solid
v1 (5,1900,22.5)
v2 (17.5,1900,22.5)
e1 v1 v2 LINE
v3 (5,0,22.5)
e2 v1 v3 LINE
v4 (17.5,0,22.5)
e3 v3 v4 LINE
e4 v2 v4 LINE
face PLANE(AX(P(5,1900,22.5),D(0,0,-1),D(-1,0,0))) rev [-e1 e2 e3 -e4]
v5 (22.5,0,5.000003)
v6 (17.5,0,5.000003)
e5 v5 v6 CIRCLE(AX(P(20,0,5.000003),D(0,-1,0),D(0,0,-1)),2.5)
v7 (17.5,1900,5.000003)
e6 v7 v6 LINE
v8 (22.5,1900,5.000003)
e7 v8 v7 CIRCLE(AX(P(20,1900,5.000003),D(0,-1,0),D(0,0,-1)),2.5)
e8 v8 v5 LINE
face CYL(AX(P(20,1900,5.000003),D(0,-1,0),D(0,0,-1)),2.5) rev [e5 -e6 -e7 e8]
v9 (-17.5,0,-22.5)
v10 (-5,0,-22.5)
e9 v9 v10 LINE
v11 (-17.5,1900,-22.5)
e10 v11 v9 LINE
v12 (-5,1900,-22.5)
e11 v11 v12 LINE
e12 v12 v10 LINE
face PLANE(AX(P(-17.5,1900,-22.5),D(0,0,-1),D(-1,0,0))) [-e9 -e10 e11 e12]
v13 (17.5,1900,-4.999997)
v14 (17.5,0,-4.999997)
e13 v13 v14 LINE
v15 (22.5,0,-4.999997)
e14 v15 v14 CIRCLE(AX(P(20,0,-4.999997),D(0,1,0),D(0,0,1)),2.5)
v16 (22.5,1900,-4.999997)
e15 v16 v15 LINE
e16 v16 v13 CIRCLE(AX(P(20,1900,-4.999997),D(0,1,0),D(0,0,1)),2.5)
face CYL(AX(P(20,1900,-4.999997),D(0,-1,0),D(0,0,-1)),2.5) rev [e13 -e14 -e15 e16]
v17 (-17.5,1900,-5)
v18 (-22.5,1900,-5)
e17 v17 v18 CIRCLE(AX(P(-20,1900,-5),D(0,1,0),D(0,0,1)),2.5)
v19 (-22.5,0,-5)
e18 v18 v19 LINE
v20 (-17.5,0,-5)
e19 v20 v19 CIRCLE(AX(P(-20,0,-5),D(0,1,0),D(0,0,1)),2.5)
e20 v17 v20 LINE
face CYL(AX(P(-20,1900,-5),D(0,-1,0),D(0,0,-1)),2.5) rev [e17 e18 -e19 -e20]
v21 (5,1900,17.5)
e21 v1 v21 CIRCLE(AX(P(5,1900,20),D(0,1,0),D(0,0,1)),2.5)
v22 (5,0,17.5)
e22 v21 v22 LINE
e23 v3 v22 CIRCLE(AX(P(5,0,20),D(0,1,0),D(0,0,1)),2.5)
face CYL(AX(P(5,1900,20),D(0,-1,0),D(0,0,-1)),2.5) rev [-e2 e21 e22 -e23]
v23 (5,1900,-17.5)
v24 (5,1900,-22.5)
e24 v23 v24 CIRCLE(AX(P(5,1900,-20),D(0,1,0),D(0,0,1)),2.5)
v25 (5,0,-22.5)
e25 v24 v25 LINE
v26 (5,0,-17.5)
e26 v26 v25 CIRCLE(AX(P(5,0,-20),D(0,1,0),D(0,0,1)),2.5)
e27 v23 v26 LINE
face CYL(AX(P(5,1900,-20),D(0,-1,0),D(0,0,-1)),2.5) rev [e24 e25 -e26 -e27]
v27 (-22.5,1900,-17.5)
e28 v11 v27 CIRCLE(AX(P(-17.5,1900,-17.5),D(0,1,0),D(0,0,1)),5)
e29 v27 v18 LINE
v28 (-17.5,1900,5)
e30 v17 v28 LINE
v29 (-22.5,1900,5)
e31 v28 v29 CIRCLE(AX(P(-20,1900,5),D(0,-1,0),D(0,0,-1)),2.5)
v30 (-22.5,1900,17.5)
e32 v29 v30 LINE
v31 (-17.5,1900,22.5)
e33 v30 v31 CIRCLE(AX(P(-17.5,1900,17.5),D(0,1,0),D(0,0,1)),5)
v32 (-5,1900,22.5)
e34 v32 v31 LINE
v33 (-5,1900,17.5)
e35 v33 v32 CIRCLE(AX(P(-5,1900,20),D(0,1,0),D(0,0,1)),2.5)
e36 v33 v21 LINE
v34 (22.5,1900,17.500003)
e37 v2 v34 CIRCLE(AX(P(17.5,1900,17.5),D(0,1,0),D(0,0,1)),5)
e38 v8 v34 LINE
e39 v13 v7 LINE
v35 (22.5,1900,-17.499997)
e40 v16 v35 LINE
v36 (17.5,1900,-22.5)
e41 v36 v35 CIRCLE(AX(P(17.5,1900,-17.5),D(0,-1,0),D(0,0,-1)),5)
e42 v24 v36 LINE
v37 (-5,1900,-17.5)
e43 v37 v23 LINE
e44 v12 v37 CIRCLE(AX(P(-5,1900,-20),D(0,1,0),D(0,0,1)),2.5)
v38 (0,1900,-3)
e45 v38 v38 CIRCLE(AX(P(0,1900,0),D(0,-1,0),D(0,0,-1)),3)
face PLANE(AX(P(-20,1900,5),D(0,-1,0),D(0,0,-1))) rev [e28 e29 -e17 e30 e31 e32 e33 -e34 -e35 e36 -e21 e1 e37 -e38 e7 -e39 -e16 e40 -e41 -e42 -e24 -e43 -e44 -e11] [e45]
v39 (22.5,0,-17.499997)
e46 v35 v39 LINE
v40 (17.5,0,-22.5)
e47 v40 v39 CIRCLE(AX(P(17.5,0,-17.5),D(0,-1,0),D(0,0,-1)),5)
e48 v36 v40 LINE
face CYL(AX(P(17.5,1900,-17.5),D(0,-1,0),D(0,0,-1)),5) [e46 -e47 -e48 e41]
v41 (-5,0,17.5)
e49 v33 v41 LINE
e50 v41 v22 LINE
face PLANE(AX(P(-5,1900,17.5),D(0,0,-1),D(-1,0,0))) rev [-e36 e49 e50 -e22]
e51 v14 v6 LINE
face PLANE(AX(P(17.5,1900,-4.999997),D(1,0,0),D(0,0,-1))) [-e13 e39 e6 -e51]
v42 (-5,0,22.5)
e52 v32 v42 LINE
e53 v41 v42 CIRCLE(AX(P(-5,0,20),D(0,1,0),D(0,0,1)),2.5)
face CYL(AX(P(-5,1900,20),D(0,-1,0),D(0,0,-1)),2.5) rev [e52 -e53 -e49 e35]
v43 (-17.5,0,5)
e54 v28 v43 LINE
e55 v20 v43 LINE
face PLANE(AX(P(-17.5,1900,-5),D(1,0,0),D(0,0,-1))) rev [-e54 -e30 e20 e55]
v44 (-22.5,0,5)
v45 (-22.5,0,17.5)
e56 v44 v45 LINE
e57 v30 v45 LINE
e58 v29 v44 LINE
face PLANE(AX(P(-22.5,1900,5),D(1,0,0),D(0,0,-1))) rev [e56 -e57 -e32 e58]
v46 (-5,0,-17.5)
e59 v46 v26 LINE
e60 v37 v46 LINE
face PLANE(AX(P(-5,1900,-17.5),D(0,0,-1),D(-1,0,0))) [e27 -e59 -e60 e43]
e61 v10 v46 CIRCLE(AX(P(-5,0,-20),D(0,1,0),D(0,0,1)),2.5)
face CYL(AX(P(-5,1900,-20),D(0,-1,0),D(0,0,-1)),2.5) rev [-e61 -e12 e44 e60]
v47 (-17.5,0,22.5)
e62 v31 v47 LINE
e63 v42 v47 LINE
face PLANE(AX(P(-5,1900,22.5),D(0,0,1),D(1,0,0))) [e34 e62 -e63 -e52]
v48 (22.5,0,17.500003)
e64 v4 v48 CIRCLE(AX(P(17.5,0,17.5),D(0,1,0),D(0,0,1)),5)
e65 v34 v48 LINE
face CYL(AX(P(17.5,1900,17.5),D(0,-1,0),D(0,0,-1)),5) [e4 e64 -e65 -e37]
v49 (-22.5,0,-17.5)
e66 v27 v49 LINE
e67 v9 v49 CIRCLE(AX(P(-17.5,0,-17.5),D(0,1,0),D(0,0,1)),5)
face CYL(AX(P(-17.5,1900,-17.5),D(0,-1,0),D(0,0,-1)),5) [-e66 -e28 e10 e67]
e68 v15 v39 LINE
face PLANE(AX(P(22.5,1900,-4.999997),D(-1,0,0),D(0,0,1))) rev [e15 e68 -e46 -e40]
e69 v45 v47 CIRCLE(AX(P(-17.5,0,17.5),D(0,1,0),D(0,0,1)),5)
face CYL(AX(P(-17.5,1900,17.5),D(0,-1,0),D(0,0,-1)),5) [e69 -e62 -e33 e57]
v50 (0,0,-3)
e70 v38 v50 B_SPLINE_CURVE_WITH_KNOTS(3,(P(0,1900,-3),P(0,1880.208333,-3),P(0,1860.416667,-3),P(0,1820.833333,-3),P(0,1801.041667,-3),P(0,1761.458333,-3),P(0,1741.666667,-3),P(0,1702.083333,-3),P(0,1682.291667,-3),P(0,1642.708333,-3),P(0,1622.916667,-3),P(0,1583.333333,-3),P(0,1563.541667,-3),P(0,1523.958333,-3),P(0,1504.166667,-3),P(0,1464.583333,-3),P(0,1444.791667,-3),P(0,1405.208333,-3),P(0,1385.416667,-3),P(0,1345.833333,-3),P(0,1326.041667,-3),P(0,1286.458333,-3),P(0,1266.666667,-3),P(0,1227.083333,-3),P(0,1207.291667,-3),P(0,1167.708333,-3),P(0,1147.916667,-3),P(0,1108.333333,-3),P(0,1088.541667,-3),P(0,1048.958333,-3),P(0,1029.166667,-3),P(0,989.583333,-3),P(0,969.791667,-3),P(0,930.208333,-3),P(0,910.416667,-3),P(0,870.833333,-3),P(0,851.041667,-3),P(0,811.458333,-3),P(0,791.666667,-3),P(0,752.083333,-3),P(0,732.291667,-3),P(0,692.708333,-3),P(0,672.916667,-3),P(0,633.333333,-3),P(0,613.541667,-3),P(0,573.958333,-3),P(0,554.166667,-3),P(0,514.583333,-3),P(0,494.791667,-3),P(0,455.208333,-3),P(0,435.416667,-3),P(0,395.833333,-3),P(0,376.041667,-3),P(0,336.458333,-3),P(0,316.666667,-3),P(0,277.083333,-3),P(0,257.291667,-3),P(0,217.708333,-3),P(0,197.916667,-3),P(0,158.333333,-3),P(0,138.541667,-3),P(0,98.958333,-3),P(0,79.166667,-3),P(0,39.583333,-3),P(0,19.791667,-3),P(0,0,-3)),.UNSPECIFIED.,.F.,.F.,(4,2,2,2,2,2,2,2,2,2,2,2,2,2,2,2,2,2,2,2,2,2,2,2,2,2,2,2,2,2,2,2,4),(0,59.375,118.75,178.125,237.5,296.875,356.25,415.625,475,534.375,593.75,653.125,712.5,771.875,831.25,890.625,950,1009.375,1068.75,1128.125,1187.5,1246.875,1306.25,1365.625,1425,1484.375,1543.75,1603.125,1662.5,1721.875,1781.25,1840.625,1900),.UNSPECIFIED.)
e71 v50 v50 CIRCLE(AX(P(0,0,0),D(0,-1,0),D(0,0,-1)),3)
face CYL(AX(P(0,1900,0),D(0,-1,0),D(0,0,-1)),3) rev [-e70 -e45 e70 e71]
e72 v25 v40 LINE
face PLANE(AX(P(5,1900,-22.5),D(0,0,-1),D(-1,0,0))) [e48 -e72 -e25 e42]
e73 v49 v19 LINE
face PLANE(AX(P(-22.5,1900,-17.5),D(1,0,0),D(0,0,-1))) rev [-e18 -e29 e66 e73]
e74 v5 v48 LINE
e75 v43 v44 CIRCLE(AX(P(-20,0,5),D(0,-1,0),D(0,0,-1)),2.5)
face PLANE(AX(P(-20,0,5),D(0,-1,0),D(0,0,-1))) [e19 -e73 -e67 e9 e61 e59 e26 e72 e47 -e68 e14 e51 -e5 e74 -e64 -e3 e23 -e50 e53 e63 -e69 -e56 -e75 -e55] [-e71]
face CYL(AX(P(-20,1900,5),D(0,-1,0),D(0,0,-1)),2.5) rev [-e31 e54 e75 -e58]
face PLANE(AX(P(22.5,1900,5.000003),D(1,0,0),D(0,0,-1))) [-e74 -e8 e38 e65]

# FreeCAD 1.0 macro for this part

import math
import FreeCAD as App
import Part
import Sketcher

V = App.Vector

doc = App.newDocument("Part")
body = doc.addObject("PartDesign::Body", "Body")

sketch1 = doc.addObject("Sketcher::SketchObject", "Sketch")
body.addObject(sketch1)
sketch1.AttachmentSupport = (doc.XZ_Plane, [""])
sketch1.MapMode = "FlatFace"
sketch1.addGeometry(Part.LineSegment(V(-5, -22.5, 0), V(-17.5, -22.5, 0)), False)
sketch1.addGeometry(Part.ArcOfCircle(Part.Circle(V(-17.5, -17.5, 0), V(0, 0, 1), 5), math.radians(180), math.radians(270)), False)
sketch1.addGeometry(Part.LineSegment(V(-22.5, -17.5, 0), V(-22.5, -5, 0)), False)
sketch1.addGeometry(Part.ArcOfCircle(Part.Circle(V(-20, -5, 0), V(0, 0, 1), 2.5), math.radians(180), math.radians(360)), False)
sketch1.addGeometry(Part.LineSegment(V(-17.5, -5, 0), V(-17.5, 5, 0)), False)
sketch1.addGeometry(Part.ArcOfCircle(Part.Circle(V(-20, 5, 0), V(0, 0, 1), 2.5), math.radians(0), math.radians(180)), False)
sketch1.addGeometry(Part.LineSegment(V(-22.5, 5, 0), V(-22.5, 17.5, 0)), False)
sketch1.addGeometry(Part.ArcOfCircle(Part.Circle(V(-17.5, 17.5, 0), V(0, 0, 1), 5), math.radians(90), math.radians(180)), False)
sketch1.addGeometry(Part.LineSegment(V(-17.5, 22.5, 0), V(-5, 22.5, 0)), False)
sketch1.addGeometry(Part.ArcOfCircle(Part.Circle(V(-5, 20, 0), V(0, 0, 1), 2.5), math.radians(90), math.radians(270)), False)
sketch1.addGeometry(Part.LineSegment(V(-5, 17.5, 0), V(5, 17.5, 0)), False)
sketch1.addGeometry(Part.ArcOfCircle(Part.Circle(V(5, 20, 0), V(0, 0, 1), 2.5), math.radians(-90), math.radians(90)), False)
sketch1.addGeometry(Part.LineSegment(V(5, 22.5, 0), V(17.5, 22.5, 0)), False)
sketch1.addGeometry(Part.ArcOfCircle(Part.Circle(V(17.5, 17.5, 0), V(0, 0, 1), 5), math.radians(0), math.radians(90)), False)
sketch1.addGeometry(Part.LineSegment(V(22.5, 17.5, 0), V(22.5, 5, 0)), False)
sketch1.addGeometry(Part.ArcOfCircle(Part.Circle(V(20, 5, 0), V(0, 0, 1), 2.5), math.radians(0), math.radians(180)), False)
sketch1.addGeometry(Part.LineSegment(V(17.5, 5, 0), V(17.5, -5, 0)), False)
sketch1.addGeometry(Part.ArcOfCircle(Part.Circle(V(20, -5, 0), V(0, 0, 1), 2.5), math.radians(180), math.radians(360)), False)
sketch1.addGeometry(Part.LineSegment(V(22.5, -5, 0), V(22.5, -17.5, 0)), False)
sketch1.addGeometry(Part.ArcOfCircle(Part.Circle(V(17.5, -17.5, 0), V(0, 0, 1), 5), math.radians(-90), math.radians(0)), False)
sketch1.addGeometry(Part.LineSegment(V(17.5, -22.5, 0), V(5, -22.5, 0)), False)
sketch1.addGeometry(Part.ArcOfCircle(Part.Circle(V(5, -20, 0), V(0, 0, 1), 2.5), math.radians(-90), math.radians(90)), False)
sketch1.addGeometry(Part.LineSegment(V(5, -17.5, 0), V(-5, -17.5, 0)), False)
sketch1.addGeometry(Part.ArcOfCircle(Part.Circle(V(-5, -20, 0), V(0, 0, 1), 2.5), math.radians(90), math.radians(270)), False)
sketch1.addConstraint(Sketcher.Constraint("Tangent", 0, 2, 1, 2))
sketch1.addConstraint(Sketcher.Constraint("Tangent", 1, 1, 2, 1))
sketch1.addConstraint(Sketcher.Constraint("Tangent", 2, 2, 3, 1))
sketch1.addConstraint(Sketcher.Constraint("Tangent", 3, 2, 4, 1))
sketch1.addConstraint(Sketcher.Constraint("Tangent", 4, 2, 5, 1))
sketch1.addConstraint(Sketcher.Constraint("Tangent", 5, 2, 6, 1))
sketch1.addConstraint(Sketcher.Constraint("Tangent", 6, 2, 7, 2))
sketch1.addConstraint(Sketcher.Constraint("Tangent", 7, 1, 8, 1))
sketch1.addConstraint(Sketcher.Constraint("Tangent", 8, 2, 9, 1))
sketch1.addConstraint(Sketcher.Constraint("Tangent", 9, 2, 10, 1))
sketch1.addConstraint(Sketcher.Constraint("Tangent", 10, 2, 11, 1))
sketch1.addConstraint(Sketcher.Constraint("Tangent", 11, 2, 12, 1))
sketch1.addConstraint(Sketcher.Constraint("Tangent", 12, 2, 13, 2))
sketch1.addConstraint(Sketcher.Constraint("Tangent", 13, 1, 14, 1))
sketch1.addConstraint(Sketcher.Constraint("Tangent", 14, 2, 15, 1))
sketch1.addConstraint(Sketcher.Constraint("Tangent", 15, 2, 16, 1))
sketch1.addConstraint(Sketcher.Constraint("Tangent", 16, 2, 17, 1))
sketch1.addConstraint(Sketcher.Constraint("Tangent", 17, 2, 18, 1))
sketch1.addConstraint(Sketcher.Constraint("Tangent", 18, 2, 19, 2))
sketch1.addConstraint(Sketcher.Constraint("Tangent", 19, 1, 20, 1))
sketch1.addConstraint(Sketcher.Constraint("Tangent", 20, 2, 21, 1))
sketch1.addConstraint(Sketcher.Constraint("Tangent", 21, 2, 22, 1))
sketch1.addConstraint(Sketcher.Constraint("Tangent", 22, 2, 23, 1))
sketch1.addConstraint(Sketcher.Constraint("Tangent", 23, 2, 0, 1))
sketch1.addConstraint(Sketcher.Constraint("Horizontal", 0))
sketch1.addConstraint(Sketcher.Constraint("Vertical", 2))
sketch1.addConstraint(Sketcher.Constraint("Vertical", 4))
sketch1.addConstraint(Sketcher.Constraint("Vertical", 6))
sketch1.addConstraint(Sketcher.Constraint("Horizontal", 8))
sketch1.addConstraint(Sketcher.Constraint("Horizontal", 10))
sketch1.addConstraint(Sketcher.Constraint("Horizontal", 12))
sketch1.addConstraint(Sketcher.Constraint("Vertical", 14))
sketch1.addConstraint(Sketcher.Constraint("Vertical", 16))
sketch1.addConstraint(Sketcher.Constraint("Vertical", 18))
sketch1.addConstraint(Sketcher.Constraint("Horizontal", 20))
sketch1.addConstraint(Sketcher.Constraint("Horizontal", 22))
sketch1.addConstraint(Sketcher.Constraint("Equal", 3, 5))
sketch1.addConstraint(Sketcher.Constraint("Equal", 1, 7))
sketch1.addConstraint(Sketcher.Constraint("Equal", 5, 9))
sketch1.addConstraint(Sketcher.Constraint("Equal", 9, 11))
sketch1.addConstraint(Sketcher.Constraint("Equal", 7, 13))
sketch1.addConstraint(Sketcher.Constraint("Equal", 11, 15))
sketch1.addConstraint(Sketcher.Constraint("Equal", 15, 17))
sketch1.addConstraint(Sketcher.Constraint("Equal", 13, 19))
sketch1.addConstraint(Sketcher.Constraint("Equal", 17, 21))
sketch1.addConstraint(Sketcher.Constraint("Equal", 21, 23))
sketch1.addConstraint(Sketcher.Constraint("Symmetric", 1, 3, 13, 3, -1, 1))
sketch1.addConstraint(Sketcher.Constraint("Horizontal", 6, 2, 9, 2))
sketch1.addConstraint(Sketcher.Constraint("Vertical", 11, 3, 21, 3))
sketch1.addConstraint(Sketcher.Constraint("Vertical", 9, 3, 23, 3))
sketch1.addConstraint(Sketcher.Constraint("Equal", 8, 12))
sketch1.addConstraint(Sketcher.Constraint("Equal", 20, 2))
sketch1.addConstraint(Sketcher.Constraint("Equal", 22, 4))
sketch1.addConstraint(Sketcher.Constraint("Equal", 2, 6))
sketch1.addConstraint(Sketcher.Constraint("Equal", 6, 14))
sketch1.addConstraint(Sketcher.Constraint("Equal", 4, 16))
sketch1.addConstraint(Sketcher.Constraint("Radius", 1, 5.0))
sketch1.addConstraint(Sketcher.Constraint("DistanceX", 10, 1, 10, 2, 10.0))
sketch1.addConstraint(Sketcher.Constraint("DistanceX", 0, 2, 0, 1, 12.5))
pad1 = doc.addObject("PartDesign::Pad", "Pad")
body.addObject(pad1)
pad1.Profile = sketch1
pad1.Length = 1900
pad1.Reversed = True

sketch2 = doc.addObject("Sketcher::SketchObject", "Sketch001")
body.addObject(sketch2)
sketch2.AttachmentSupport = (doc.XZ_Plane, [""])
sketch2.MapMode = "FlatFace"
sketch2.addGeometry(Part.Circle(V(0, 0, 0), V(0, 0, 1), 3), False)
sketch2.addConstraint(Sketcher.Constraint("Coincident", 0, 3, -1, 1))
sketch2.addConstraint(Sketcher.Constraint("Diameter", 0, 6.0))
pocket1 = doc.addObject("PartDesign::Pocket", "Pocket")
body.addObject(pocket1)
pocket1.Profile = sketch2
pocket1.Type = "ThroughAll"

doc.recompute()
